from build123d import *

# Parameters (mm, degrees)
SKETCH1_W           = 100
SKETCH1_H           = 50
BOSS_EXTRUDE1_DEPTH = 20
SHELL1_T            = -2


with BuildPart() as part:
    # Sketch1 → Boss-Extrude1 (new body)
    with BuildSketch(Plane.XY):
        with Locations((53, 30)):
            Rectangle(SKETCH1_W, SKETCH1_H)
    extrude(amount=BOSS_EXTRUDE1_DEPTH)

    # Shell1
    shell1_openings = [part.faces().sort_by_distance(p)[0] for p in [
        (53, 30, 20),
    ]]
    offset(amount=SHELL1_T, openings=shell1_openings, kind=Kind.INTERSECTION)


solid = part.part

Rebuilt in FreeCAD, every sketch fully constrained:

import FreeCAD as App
import Part
import Sketcher
Q = App.Units.Quantity


def faces_at(feature, points):
    """Names of the faces that lie closest to the given points."""
    faces = feature.Shape.Faces
    near = lambda p: min(range(len(faces)), key=lambda i: faces[i].distToShape(Part.Vertex(*p))[0])
    return sorted({f"Face{near(p) + 1}" for p in points})

doc = App.newDocument("Part")
body = doc.addObject("PartDesign::Body", "Body")

sketch1 = doc.addObject("Sketcher::SketchObject", "Sketch")
body.addObject(sketch1)
sketch1.AttachmentSupport = (doc.XY_Plane, [""])
sketch1.MapMode = "FlatFace"
sketch1.addGeometry([
    Part.LineSegment(App.Vector(3, 55, 0), App.Vector(3, 5, 0)),
    Part.LineSegment(App.Vector(3, 5, 0), App.Vector(103, 5, 0)),
    Part.LineSegment(App.Vector(103, 5, 0), App.Vector(103, 55, 0)),
    Part.LineSegment(App.Vector(103, 55, 0), App.Vector(3, 55, 0)),
], False)
sketch1.addConstraint([
    Sketcher.Constraint("Coincident", 0, 2, 1, 1),
    Sketcher.Constraint("Coincident", 1, 2, 2, 1),
    Sketcher.Constraint("Coincident", 2, 2, 3, 1),
    Sketcher.Constraint("Coincident", 3, 2, 0, 1),
    Sketcher.Constraint("Vertical", 0),
    Sketcher.Constraint("Horizontal", 1),
    Sketcher.Constraint("Vertical", 2),
    Sketcher.Constraint("Horizontal", 3),
    Sketcher.Constraint("DistanceX", 1, 1, 1, 2, Q("100 mm")),
    Sketcher.Constraint("DistanceY", 0, 2, 0, 1, Q("50 mm")),
    Sketcher.Constraint("DistanceX", -1, 1, 0, 2, Q("3 mm")),
    Sketcher.Constraint("DistanceY", -1, 1, 0, 2, Q("5 mm")),
])
pad1 = doc.addObject("PartDesign::Pad", "Pad")
body.addObject(pad1)
pad1.Profile = sketch1
pad1.Length = 20
doc.recompute()

thickness = doc.addObject("PartDesign::Thickness", "Thickness")
body.addObject(thickness)
thickness.Base = (pad1, faces_at(pad1, [(53, 30, 20)]))
thickness.Value = 2
thickness.Reversed = True
thickness.Join = "Intersection"

doc.recompute()
